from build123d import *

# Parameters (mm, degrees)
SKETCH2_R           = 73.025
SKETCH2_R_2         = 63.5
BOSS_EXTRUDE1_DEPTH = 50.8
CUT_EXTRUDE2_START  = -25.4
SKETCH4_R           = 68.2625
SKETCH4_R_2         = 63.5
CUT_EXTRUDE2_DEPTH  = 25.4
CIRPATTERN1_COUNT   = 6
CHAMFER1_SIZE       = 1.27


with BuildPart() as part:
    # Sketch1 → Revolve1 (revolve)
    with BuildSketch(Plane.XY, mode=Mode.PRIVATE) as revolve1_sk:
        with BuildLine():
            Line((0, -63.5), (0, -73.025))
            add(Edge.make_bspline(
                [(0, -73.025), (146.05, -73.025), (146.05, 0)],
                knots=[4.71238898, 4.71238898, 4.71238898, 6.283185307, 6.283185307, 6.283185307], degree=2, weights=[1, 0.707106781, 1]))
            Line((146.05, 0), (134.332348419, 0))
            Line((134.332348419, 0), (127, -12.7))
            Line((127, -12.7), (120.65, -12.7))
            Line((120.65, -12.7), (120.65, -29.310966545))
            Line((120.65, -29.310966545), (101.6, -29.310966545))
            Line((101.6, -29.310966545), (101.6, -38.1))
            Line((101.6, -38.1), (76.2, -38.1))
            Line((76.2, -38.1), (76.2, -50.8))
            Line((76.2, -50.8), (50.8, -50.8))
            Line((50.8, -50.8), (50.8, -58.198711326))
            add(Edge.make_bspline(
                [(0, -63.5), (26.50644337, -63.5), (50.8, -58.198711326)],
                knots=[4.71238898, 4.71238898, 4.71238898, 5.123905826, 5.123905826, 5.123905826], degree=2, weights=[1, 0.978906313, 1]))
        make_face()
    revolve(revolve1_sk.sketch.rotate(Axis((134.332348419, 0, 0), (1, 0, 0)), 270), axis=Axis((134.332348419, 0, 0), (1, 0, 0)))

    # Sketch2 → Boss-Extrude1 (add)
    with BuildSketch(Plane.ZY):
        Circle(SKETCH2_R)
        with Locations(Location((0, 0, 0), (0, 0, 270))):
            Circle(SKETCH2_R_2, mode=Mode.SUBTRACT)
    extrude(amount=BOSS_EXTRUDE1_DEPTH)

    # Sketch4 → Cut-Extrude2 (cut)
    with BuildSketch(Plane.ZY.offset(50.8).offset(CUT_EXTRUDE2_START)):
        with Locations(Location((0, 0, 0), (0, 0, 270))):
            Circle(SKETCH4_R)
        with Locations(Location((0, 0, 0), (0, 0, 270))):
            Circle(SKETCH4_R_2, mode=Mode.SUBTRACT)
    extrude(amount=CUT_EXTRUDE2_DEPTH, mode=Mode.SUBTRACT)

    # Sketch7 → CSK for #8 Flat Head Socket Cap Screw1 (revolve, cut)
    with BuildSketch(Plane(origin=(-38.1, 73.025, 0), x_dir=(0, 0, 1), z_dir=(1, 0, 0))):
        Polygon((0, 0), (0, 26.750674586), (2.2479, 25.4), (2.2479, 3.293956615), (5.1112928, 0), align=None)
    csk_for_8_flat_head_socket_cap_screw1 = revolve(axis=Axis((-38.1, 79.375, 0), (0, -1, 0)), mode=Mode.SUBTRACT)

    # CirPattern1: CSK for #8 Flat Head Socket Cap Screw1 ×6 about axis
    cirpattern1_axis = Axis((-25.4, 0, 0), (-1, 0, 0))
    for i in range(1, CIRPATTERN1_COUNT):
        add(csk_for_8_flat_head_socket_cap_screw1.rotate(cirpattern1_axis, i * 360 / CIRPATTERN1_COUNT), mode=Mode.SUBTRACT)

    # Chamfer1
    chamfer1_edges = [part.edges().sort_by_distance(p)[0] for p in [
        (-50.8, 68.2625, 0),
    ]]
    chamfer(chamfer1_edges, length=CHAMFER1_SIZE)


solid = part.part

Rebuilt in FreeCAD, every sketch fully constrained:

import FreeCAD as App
import Part
import Sketcher
from FreeCAD import Vector
Q = App.Units.Quantity


def edges_at(feature, points):
    """Names of the edges that pass closest to the given points."""
    edges = feature.Shape.Edges
    near = lambda p: min(range(len(edges)), key=lambda i: edges[i].distToShape(Part.Vertex(*p))[0])
    return sorted({f"Edge{near(p) + 1}" for p in points})

doc = App.newDocument("Part")
body = doc.addObject("PartDesign::Body", "Body")

# Sketch on XY plane
sketch1 = body.newObject("Sketcher::SketchObject", "Sketch")
sketch1.AttachmentSupport = (doc.getObject("XY_Plane"), [""])
sketch1.MapMode = "FlatFace"
sketch1.addGeometry([
    Part.LineSegment(Vector(0, -63.5, 0), Vector(0, -73.025, 0)),  # 0
    Part.BSplineCurve([Vector(0, -73.025, 0), Vector(146.05, -73.025, 0), Vector(146.05, 0, 0)], [3, 3], [4.71238898, 6.283185307], False, 2, [1, 0.707106781, 1], False),  # 1
    Part.LineSegment(Vector(146.05, 0, 0), Vector(134.332348, 0, 0)),  # 2
    Part.LineSegment(Vector(134.332348, 0, 0), Vector(127, -12.7, 0)),  # 3
    Part.LineSegment(Vector(127, -12.7, 0), Vector(120.65, -12.7, 0)),  # 4
    Part.LineSegment(Vector(120.65, -12.7, 0), Vector(120.65, -29.310967, 0)),  # 5
    Part.LineSegment(Vector(120.65, -29.310967, 0), Vector(101.6, -29.310967, 0)),  # 6
    Part.LineSegment(Vector(101.6, -29.310967, 0), Vector(101.6, -38.1, 0)),  # 7
    Part.LineSegment(Vector(101.6, -38.1, 0), Vector(76.2, -38.1, 0)),  # 8
    Part.LineSegment(Vector(76.2, -38.1, 0), Vector(76.2, -50.8, 0)),  # 9
    Part.LineSegment(Vector(76.2, -50.8, 0), Vector(50.8, -50.8, 0)),  # 10
    Part.LineSegment(Vector(50.8, -50.8, 0), Vector(50.8, -58.198711, 0)),  # 11
    Part.BSplineCurve([Vector(0, -63.5, 0), Vector(26.506443, -63.5, 0), Vector(50.8, -58.198711, 0)], [3, 3], [4.71238898, 5.123905826], False, 2, [1, 0.978906313, 1], False),  # 12
], False)
sketch1.addConstraint([
    Sketcher.Constraint("Block", 1),
    Sketcher.Constraint("Block", 12),
    Sketcher.Constraint("Coincident", 0, 2, 1, 1),
    Sketcher.Constraint("Coincident", 1, 2, 2, 1),
    Sketcher.Constraint("Coincident", 2, 2, 3, 1),
    Sketcher.Constraint("Coincident", 3, 2, 4, 1),
    Sketcher.Constraint("Coincident", 4, 2, 5, 1),
    Sketcher.Constraint("Coincident", 5, 2, 6, 1),
    Sketcher.Constraint("Coincident", 6, 2, 7, 1),
    Sketcher.Constraint("Coincident", 7, 2, 8, 1),
    Sketcher.Constraint("Coincident", 8, 2, 9, 1),
    Sketcher.Constraint("Coincident", 9, 2, 10, 1),
    Sketcher.Constraint("Coincident", 10, 2, 11, 1),
    Sketcher.Constraint("Coincident", 11, 2, 12, 2),
    Sketcher.Constraint("Coincident", 12, 1, 0, 1),
    Sketcher.Constraint("Horizontal", 2),
    Sketcher.Constraint("Horizontal", 4),
    Sketcher.Constraint("Vertical", 5),
    Sketcher.Constraint("Horizontal", 6),
    Sketcher.Constraint("Vertical", 7),
    Sketcher.Constraint("Horizontal", 8),
    Sketcher.Constraint("Vertical", 9),
    Sketcher.Constraint("Horizontal", 10),
    Sketcher.Constraint("Vertical", 11),
    Sketcher.Constraint("Equal", 8, 10),
    Sketcher.Constraint("DistanceX", 8, 2, 8, 1, Q("1 in")),
    Sketcher.Constraint("DistanceY", 9, 2, 9, 1, Q("0.5 in")),
    Sketcher.Constraint("DistanceX", -1, 1, 3, 2, Q("5 in")),
    Sketcher.Constraint("DistanceY", 9, 2, -1, 1, Q("2 in")),
    Sketcher.Constraint("Angle", 3, Q("-120 deg")),
    Sketcher.Constraint("DistanceY", 7, 2, 4, 2, Q("1 in")),
    Sketcher.Constraint("DistanceX", 4, 2, 4, 1, Q("0.25 in")),
    Sketcher.Constraint("DistanceY", 5, 2, 5, 1, 16.610967),
])
revolution = body.newObject("PartDesign::Revolution", "Revolution")
revolution.Profile = sketch1
revolution.ReferenceAxis = (sketch1, ["H_Axis"])
revolution.Angle = 360

# Sketch on YZ plane
sketch2 = body.newObject("Sketcher::SketchObject", "Sketch001")
sketch2.AttachmentSupport = (doc.getObject("YZ_Plane"), [""])
sketch2.MapMode = "FlatFace"
sketch2.addGeometry([
    Part.Circle(Vector(0, 0, 0), Vector(0, 0, 1), 73),
    Part.Circle(Vector(0, 0, 0), Vector(0, 0, 1), 64),
], False)
sketch2.addConstraint([
    Sketcher.Constraint("Coincident", 0, 3, -1, 1),
    Sketcher.Constraint("Coincident", 1, 3, -1, 1),
    Sketcher.Constraint("Diameter", 1, Q("5 in")),
    Sketcher.Constraint("Diameter", 0, Q("5.75 in")),
])
pad1 = body.newObject("PartDesign::Pad", "Pad")
pad1.Profile = sketch2
pad1.Length = Q("2 in")
pad1.Reversed = True

# Sketch on YZ plane
sketch3 = body.newObject("Sketcher::SketchObject", "Sketch002")
sketch3.AttachmentSupport = (doc.getObject("YZ_Plane"), [""])
sketch3.MapMode = "FlatFace"
sketch3.AttachmentOffset = App.Placement(Vector(0, 0, -1 * 25.4), App.Rotation())
sketch3.addGeometry([
    Part.Circle(Vector(0, 0, 0), Vector(0, 0, 1), 68),
    Part.Circle(Vector(0, 0, 0), Vector(0, 0, 1), 64),
], False)
sketch3.addConstraint([
    Sketcher.Constraint("Coincident", 0, 3, -1, 1),
    Sketcher.Constraint("Coincident", 1, 3, -1, 1),
    Sketcher.Constraint("Diameter", 1, Q("5 in")),
    Sketcher.Constraint("Diameter", 0, Q("5.375 in")),
])
pocket1 = body.newObject("PartDesign::Pocket", "Pocket")
pocket1.Profile = sketch3
pocket1.Length = Q("1 in")

# Sketch on YZ plane
sketch4 = body.newObject("Sketcher::SketchObject", "Sketch003")
sketch4.AttachmentSupport = (doc.getObject("YZ_Plane"), [""])
sketch4.MapMode = "FlatFace"
sketch4.AttachmentOffset = App.Placement(Vector(0, 0, -1.5 * 25.4), App.Rotation())
sketch4.addGeometry([
    Part.LineSegment(Vector(46.3, 0, 0), Vector(73, 0, 0)),  # 0
    Part.LineSegment(Vector(73, 0, 0), Vector(73, 5.1, 0)),  # 1
    Part.LineSegment(Vector(73, 5.1, 0), Vector(69.7, 2.2, 0)),  # 2
    Part.LineSegment(Vector(69.7, 2.2, 0), Vector(47.6, 2.2, 0)),  # 3
    Part.LineSegment(Vector(47.6, 2.2, 0), Vector(46.3, 0, 0)),  # 4
], False)
sketch4.addConstraint([
    Sketcher.Constraint("Coincident", 0, 2, 1, 1),
    Sketcher.Constraint("Coincident", 1, 2, 2, 1),
    Sketcher.Constraint("Coincident", 2, 2, 3, 1),
    Sketcher.Constraint("Coincident", 3, 2, 4, 1),
    Sketcher.Constraint("Coincident", 4, 2, 0, 1),
    Sketcher.Constraint("Horizontal", 0),
    Sketcher.Constraint("Vertical", 1),
    Sketcher.Constraint("Horizontal", 3),
    Sketcher.Constraint("PointOnObject", 0, 2, -1),
    Sketcher.Constraint("Angle", 2, Q("-139 deg")),
    Sketcher.Constraint("Angle", 4, Q("-121 deg")),
    Sketcher.Constraint("DistanceX", 3, 2, 0, 2, Q("1 in")),
    Sketcher.Constraint("DistanceX", -1, 1, 0, 2, Q("2.875 in")),
    Sketcher.Constraint("DistanceY", -1, 1, 2, 2, Q("0.0885 in")),
    Sketcher.Constraint("DistanceX", 3, 2, 3, 1, 22.106043),
])
groove = body.newObject("PartDesign::Groove", "Groove")
groove.Profile = sketch4
groove.ReferenceAxis = (sketch4, ["H_Axis"])
groove.Angle = 360
doc.recompute()

polarpattern = body.newObject("PartDesign::PolarPattern", "PolarPattern")
polarpattern.Originals = [groove]
polarpattern.Axis = (doc.getObject("X_Axis"), [""])
polarpattern.Angle = 360
polarpattern.Occurrences = 6
body.Tip = polarpattern
doc.recompute()

chamfer = body.newObject("PartDesign::Chamfer", "Chamfer")
chamfer.Base = (polarpattern, edges_at(polarpattern, [(-50.8, 68.263, 0)]))
chamfer.Size = Q("0.05 in")

doc.recompute()
